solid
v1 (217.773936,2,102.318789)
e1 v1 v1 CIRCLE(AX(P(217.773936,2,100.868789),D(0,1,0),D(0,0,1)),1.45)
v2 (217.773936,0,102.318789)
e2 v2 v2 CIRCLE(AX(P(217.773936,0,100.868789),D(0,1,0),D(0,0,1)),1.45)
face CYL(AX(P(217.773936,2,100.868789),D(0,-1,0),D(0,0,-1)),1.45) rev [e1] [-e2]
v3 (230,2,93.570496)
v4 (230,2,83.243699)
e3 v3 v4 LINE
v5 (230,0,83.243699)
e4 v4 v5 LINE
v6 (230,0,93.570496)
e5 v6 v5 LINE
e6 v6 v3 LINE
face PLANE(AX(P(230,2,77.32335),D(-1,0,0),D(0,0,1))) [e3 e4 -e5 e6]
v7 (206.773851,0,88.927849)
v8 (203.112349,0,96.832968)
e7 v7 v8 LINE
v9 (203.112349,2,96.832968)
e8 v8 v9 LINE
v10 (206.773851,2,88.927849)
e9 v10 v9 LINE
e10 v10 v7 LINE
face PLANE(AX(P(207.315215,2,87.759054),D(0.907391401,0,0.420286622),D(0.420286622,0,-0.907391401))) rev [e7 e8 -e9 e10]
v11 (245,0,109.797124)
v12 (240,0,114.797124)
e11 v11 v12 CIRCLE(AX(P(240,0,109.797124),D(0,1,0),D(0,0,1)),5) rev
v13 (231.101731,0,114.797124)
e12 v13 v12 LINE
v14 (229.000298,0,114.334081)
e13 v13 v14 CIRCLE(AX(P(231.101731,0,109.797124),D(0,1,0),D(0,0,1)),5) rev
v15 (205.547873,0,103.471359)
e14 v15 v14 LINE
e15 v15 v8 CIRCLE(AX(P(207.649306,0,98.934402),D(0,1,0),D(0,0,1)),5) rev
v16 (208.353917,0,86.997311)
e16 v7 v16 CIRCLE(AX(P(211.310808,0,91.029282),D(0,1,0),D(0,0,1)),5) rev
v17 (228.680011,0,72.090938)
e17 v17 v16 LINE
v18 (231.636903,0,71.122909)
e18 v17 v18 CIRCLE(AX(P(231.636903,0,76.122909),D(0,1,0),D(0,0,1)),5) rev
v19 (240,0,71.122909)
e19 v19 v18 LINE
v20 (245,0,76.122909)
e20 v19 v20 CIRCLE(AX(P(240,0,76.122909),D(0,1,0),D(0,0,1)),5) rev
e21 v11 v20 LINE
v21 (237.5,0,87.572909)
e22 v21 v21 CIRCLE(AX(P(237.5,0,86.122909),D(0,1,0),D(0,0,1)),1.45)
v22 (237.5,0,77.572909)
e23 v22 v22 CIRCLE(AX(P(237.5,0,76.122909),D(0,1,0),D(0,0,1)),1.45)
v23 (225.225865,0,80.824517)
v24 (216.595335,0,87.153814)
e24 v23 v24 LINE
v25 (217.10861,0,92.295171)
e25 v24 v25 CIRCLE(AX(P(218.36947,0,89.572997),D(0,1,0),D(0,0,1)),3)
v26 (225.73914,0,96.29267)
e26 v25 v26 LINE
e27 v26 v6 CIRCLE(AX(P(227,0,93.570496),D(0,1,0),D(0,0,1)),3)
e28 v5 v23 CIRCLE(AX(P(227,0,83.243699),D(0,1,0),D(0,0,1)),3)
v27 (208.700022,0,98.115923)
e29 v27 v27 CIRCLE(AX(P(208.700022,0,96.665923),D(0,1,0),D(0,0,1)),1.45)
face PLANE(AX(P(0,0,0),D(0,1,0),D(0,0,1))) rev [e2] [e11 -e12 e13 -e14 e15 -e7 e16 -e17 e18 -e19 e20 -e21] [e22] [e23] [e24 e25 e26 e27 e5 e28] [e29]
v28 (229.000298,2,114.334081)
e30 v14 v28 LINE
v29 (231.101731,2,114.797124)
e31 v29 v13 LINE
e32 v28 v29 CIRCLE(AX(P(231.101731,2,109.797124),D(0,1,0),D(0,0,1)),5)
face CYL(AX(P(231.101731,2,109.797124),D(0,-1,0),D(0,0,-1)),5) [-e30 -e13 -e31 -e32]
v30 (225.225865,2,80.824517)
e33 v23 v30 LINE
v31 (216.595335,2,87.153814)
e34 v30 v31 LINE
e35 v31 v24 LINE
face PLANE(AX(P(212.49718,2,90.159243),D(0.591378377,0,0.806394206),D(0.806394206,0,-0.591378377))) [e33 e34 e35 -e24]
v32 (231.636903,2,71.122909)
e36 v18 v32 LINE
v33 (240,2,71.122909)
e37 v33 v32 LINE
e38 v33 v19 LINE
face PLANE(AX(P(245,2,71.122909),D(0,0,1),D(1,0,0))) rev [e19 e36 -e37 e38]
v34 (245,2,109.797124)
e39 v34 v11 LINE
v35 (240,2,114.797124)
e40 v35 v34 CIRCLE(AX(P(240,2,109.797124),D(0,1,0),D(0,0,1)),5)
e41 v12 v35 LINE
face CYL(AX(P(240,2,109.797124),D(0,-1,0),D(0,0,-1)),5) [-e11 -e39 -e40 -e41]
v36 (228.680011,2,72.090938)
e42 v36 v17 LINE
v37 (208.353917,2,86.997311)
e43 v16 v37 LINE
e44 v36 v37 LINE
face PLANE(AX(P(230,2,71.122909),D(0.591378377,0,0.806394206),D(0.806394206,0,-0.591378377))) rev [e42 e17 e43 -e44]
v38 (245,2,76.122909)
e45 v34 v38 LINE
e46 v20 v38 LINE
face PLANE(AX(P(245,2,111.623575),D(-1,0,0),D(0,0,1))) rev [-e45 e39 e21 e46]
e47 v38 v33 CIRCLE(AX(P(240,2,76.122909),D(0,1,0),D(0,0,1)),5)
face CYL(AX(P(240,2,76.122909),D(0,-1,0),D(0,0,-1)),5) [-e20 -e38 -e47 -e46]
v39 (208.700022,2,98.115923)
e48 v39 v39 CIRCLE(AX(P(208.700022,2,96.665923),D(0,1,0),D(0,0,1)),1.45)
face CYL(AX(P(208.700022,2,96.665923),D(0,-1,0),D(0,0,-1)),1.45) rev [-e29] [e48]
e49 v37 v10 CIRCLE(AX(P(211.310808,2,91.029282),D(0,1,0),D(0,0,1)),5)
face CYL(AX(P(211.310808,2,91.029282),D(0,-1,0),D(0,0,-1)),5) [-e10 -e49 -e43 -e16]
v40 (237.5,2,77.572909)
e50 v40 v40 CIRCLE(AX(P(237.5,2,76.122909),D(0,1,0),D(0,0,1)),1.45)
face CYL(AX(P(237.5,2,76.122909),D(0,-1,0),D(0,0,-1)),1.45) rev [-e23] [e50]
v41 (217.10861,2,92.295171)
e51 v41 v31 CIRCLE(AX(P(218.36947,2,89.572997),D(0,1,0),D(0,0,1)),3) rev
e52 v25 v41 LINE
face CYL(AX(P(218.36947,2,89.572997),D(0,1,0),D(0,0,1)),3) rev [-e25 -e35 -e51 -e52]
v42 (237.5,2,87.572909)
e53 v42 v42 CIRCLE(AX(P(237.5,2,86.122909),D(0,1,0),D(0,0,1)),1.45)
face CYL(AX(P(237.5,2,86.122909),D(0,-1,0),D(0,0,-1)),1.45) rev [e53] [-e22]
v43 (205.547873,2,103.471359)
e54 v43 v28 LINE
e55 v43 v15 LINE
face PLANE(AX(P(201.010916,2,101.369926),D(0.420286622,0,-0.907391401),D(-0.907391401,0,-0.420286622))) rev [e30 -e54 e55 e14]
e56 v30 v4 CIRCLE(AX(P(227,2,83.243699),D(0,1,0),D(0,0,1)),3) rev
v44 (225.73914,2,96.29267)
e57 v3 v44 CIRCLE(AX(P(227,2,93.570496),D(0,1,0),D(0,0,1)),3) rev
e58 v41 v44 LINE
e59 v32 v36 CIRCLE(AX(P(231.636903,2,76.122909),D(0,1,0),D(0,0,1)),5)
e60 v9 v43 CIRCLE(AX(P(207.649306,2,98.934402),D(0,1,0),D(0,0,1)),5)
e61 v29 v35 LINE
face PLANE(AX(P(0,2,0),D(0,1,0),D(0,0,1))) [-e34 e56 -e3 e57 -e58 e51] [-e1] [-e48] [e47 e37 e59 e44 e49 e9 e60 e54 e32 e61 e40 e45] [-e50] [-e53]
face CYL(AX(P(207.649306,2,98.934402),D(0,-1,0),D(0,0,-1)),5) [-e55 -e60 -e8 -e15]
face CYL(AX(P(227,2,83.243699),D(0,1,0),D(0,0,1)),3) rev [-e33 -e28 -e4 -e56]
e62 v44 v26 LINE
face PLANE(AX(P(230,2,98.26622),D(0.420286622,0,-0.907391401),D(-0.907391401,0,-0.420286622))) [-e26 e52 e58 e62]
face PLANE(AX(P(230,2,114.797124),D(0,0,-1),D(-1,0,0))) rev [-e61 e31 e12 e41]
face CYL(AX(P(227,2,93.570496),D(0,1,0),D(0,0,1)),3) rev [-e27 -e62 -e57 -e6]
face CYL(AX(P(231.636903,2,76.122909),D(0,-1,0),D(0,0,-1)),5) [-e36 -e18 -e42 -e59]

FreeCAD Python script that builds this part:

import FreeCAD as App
import Part
import Sketcher

V = App.Vector
Q = App.Units.Quantity


def edges_at(feature, points):
    """Names of the edges that pass closest to the given points."""
    edges = feature.Shape.Edges
    near = lambda p: min(range(len(edges)), key=lambda i: edges[i].distToShape(Part.Vertex(*p))[0])
    return sorted({f"Edge{near(p) + 1}" for p in points})


def add_polygon(sketch, points):
    """Adds a closed chain of lines whose ends are joined by coincident constraints."""
    first, n = sketch.GeometryCount, len(points)
    for a, b in zip(points, points[1:] + points[:1]):
        sketch.addGeometry(Part.LineSegment(App.Vector(*a, 0), App.Vector(*b, 0)), False)
    for i in range(n):
        sketch.addConstraint(Sketcher.Constraint("Coincident", first + i, 2, first + (i + 1) % n, 1))

doc = App.newDocument("Part")
body = doc.addObject("PartDesign::Body", "Body")

sketch1 = doc.addObject("Sketcher::SketchObject", "Sketch")
body.addObject(sketch1)
sketch1.AttachmentSupport = (doc.XZ_Plane, [""])
sketch1.MapMode = "FlatFace"
add_polygon(sketch1, [(207.315215, 87.759054), (201.010916, 101.369926), (230, 114.797124), (245, 114.797124), (245, 71.122909), (230, 71.122909)])
sketch1.addGeometry(Part.Circle(V(208.700022, 96.665923, 0), V(0, 0, 1), 1.45), False)
sketch1.addGeometry(Part.Circle(V(217.773936, 100.868789, 0), V(0, 0, 1), 1.45), False)
add_polygon(sketch1, [(212.49718, 90.159243), (230, 77.32335), (230, 98.26622)])
sketch1.addGeometry(Part.Circle(V(237.5, 86.122909, 0), V(0, 0, 1), 1.45), False)
sketch1.addGeometry(Part.Circle(V(237.5, 76.122909, 0), V(0, 0, 1), 1.45), False)
sketch1.addConstraint(Sketcher.Constraint("Horizontal", 2))
sketch1.addConstraint(Sketcher.Constraint("Vertical", 3))
sketch1.addConstraint(Sketcher.Constraint("Horizontal", 4))
sketch1.addConstraint(Sketcher.Constraint("Vertical", 9))
sketch1.addConstraint(Sketcher.Constraint("Equal", 6, 7))
sketch1.addConstraint(Sketcher.Constraint("Equal", 7, 11))
sketch1.addConstraint(Sketcher.Constraint("Equal", 11, 12))
sketch1.addConstraint(Sketcher.Constraint("Perpendicular", 0, 1))
sketch1.addConstraint(Sketcher.Constraint("Parallel", 5, 8))
sketch1.addConstraint(Sketcher.Constraint("Parallel", 1, 10))
sketch1.addConstraint(Sketcher.Constraint("Vertical", 11, 3, 12, 3))
sketch1.addConstraint(Sketcher.Constraint("Vertical", 1, 2, 4, 2))
sketch1.addConstraint(Sketcher.Constraint("Vertical", 4, 2, 8, 2))
sketch1.addConstraint(Sketcher.Constraint("Diameter", 6, Q("2.9 mm")))
sketch1.addConstraint(Sketcher.Constraint("DistanceX", 2, 1, 2, 2, Q("15 mm")))
sketch1.addConstraint(Sketcher.Constraint("Distance", 0, Q("15 mm")))
sketch1.addConstraint(Sketcher.Constraint("DistanceX", -1, 1, 1, 2, Q("230 mm")))
sketch1.addConstraint(Sketcher.Constraint("DistanceY", 12, 3, 11, 3, Q("10 mm")))
sketch1.addConstraint(Sketcher.Constraint("DistanceY", 3, 2, 12, 3, Q("5 mm")))
sketch1.addConstraint(Sketcher.Constraint("DistanceX", -1, 1, 11, 3, Q("237.5 mm")))
sketch1.addConstraint(Sketcher.Constraint("DistanceY", 9, 1, 9, 2, Q("20.94287 mm")))
sketch1.addConstraint(Sketcher.Constraint("DistanceY", 6, 3, 1, 2, Q("18.131201 mm")))
sketch1.addConstraint(Sketcher.Constraint("DistanceY", 0, 2, 1, 2, Q("13.427198 mm")))
sketch1.addConstraint(Sketcher.Constraint("DistanceX", 0, 2, 5, 2, Q("6.304299 mm")))
sketch1.addConstraint(Sketcher.Constraint("DistanceY", 3, 2, 3, 1, Q("43.674215 mm")))
sketch1.addConstraint(Sketcher.Constraint("DistanceY", -1, 1, 7, 3, Q("100.868789 mm")))
sketch1.addConstraint(Sketcher.Constraint("DistanceY", -1, 1, 11, 3, Q("86.122909 mm")))
sketch1.addConstraint(Sketcher.Constraint("DistanceY", -1, 1, 8, 2, Q("77.32335 mm")))
sketch1.addConstraint(Sketcher.Constraint("DistanceX", 0, 2, 7, 3, Q("16.763021 mm")))
sketch1.addConstraint(Sketcher.Constraint("DistanceX", -1, 1, 6, 3, Q("208.700022 mm")))
pad1 = doc.addObject("PartDesign::Pad", "Pad")
body.addObject(pad1)
pad1.Profile = sketch1
pad1.Length = 2
pad1.Reversed = True
doc.recompute()

fillet = doc.addObject("PartDesign::Fillet", "Fillet")
body.addObject(fillet)
fillet.Base = (pad1, edges_at(pad1, [
    (230, 1, 71.123),
    (245, 1, 71.123),
    (245, 1, 114.797),
    (230, 1, 114.797),
    (201.011, 1, 101.37),
    (207.315, 1, 87.759),
]))
fillet.Radius = 5
doc.recompute()

fillet2 = doc.addObject("PartDesign::Fillet", "Fillet001")
body.addObject(fillet2)
fillet2.Base = (fillet, edges_at(fillet, [(230, 1, 77.323), (212.497, 1, 90.159), (230, 1, 98.266)]))
fillet2.Radius = 3

doc.recompute()
